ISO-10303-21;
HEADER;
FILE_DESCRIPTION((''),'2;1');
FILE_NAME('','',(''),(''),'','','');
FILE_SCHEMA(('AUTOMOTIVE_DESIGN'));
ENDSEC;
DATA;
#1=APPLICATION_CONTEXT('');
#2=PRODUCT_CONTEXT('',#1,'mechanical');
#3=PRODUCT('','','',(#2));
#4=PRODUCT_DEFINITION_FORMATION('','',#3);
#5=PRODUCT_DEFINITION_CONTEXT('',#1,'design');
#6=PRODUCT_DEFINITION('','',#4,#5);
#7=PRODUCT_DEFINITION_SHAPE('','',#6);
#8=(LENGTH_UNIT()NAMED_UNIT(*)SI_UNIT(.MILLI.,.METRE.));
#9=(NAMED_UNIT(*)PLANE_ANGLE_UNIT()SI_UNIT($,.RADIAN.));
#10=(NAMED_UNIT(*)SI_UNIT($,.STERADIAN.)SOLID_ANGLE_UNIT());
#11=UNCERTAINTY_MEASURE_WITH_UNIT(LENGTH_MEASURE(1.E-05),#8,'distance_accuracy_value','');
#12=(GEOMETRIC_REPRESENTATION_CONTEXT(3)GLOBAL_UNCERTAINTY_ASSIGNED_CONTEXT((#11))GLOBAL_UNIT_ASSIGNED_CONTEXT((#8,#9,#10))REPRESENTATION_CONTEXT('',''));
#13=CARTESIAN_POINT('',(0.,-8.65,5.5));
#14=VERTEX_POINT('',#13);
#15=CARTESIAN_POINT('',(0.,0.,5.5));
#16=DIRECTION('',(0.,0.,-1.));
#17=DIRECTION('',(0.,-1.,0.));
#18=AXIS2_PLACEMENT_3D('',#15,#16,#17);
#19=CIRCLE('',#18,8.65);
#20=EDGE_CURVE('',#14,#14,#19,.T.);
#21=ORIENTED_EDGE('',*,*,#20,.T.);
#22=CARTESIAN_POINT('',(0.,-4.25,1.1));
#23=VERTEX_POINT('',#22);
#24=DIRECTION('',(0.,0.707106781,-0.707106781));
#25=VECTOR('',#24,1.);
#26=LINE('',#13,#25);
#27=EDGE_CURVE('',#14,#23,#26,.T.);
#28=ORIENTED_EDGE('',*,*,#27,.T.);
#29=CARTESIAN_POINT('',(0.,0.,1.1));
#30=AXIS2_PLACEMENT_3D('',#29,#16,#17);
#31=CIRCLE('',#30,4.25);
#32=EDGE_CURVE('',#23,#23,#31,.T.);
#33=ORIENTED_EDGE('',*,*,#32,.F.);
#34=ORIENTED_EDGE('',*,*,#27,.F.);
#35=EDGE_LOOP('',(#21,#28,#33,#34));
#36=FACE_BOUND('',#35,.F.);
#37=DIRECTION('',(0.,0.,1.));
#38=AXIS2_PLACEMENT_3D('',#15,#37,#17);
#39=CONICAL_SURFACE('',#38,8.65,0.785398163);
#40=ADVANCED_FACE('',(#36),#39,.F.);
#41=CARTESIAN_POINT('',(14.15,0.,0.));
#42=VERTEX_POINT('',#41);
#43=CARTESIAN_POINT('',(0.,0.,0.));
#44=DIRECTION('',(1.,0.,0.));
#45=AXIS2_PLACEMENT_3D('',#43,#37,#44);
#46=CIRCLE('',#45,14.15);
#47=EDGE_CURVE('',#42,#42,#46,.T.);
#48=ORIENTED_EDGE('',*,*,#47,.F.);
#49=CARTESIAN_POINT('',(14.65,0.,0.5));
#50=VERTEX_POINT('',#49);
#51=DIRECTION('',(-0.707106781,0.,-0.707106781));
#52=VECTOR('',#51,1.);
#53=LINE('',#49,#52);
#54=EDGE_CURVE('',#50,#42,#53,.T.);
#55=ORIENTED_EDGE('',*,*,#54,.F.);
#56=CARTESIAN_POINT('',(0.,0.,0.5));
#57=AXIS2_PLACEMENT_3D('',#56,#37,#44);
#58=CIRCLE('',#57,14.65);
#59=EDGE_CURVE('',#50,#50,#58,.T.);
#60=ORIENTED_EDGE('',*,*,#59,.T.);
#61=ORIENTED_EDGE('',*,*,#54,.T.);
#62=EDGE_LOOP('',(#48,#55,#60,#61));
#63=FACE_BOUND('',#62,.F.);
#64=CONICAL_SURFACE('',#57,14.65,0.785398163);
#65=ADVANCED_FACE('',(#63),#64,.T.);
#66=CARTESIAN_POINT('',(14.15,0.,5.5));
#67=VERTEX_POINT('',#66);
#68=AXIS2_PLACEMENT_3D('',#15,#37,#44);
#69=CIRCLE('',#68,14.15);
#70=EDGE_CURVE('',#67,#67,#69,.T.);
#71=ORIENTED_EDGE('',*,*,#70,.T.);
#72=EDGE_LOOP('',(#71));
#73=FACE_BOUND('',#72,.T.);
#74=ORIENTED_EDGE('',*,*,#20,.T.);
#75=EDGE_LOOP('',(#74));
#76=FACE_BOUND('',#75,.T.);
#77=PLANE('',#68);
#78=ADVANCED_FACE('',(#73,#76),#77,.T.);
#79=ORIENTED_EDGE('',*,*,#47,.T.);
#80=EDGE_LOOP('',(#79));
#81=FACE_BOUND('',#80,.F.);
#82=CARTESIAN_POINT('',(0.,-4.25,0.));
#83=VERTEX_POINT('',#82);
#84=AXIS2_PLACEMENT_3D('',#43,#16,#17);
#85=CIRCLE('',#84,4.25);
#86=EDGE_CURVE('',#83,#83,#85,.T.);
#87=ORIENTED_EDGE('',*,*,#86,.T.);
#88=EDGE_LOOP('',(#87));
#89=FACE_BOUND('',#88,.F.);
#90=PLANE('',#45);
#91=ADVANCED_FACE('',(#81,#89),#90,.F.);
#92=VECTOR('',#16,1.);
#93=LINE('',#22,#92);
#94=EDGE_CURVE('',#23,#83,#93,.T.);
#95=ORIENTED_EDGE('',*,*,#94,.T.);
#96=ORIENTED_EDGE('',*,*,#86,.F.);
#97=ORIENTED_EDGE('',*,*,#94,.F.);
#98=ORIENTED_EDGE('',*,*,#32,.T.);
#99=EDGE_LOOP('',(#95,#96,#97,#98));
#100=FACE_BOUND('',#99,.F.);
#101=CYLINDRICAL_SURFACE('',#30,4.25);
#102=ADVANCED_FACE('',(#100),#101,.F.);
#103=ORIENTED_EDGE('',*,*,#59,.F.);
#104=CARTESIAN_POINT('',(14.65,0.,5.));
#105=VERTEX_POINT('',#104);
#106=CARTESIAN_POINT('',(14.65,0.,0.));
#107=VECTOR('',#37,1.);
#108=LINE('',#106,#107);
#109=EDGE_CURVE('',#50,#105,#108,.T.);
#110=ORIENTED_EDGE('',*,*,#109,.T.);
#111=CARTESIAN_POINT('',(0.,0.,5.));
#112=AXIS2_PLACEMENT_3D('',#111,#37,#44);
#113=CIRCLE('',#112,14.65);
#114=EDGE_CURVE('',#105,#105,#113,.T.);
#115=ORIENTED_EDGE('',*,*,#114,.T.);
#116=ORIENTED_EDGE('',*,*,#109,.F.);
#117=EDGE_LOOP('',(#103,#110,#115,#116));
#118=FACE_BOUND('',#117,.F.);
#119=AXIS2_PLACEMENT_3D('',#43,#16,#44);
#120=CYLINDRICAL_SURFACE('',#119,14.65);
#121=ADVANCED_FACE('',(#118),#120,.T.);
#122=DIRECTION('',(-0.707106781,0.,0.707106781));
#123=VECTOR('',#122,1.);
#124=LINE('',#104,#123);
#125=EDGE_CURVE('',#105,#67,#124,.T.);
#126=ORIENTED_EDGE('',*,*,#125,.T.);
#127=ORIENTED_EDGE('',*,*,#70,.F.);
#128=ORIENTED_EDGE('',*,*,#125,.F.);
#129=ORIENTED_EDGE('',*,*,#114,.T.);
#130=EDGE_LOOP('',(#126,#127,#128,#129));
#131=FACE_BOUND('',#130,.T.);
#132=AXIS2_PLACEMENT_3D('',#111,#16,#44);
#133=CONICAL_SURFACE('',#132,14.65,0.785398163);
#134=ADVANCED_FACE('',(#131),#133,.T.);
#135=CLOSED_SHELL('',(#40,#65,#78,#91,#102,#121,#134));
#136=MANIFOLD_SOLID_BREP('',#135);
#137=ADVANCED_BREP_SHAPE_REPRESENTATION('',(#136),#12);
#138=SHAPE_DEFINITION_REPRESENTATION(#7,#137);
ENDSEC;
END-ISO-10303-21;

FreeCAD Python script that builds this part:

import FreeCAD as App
import Part
import Sketcher


def edges_at(feature, points):
    """Names of the edges that pass closest to the given points."""
    edges = feature.Shape.Edges
    near = lambda p: min(range(len(edges)), key=lambda i: edges[i].distToShape(Part.Vertex(*p))[0])
    return sorted({f"Edge{near(p) + 1}" for p in points})

doc = App.newDocument("Part")
body = doc.addObject("PartDesign::Body", "Body")

# Sketch on XY plane
sketch1 = doc.addObject("Sketcher::SketchObject", "Sketch")
body.addObject(sketch1)
sketch1.AttachmentSupport = (doc.XY_Plane, [""])
sketch1.MapMode = "FlatFace"
sketch1.addGeometry(Part.Circle(App.Vector(0, 0, 0), App.Vector(0, 0, 1), 15), False)
sketch1.addConstraint([
    Sketcher.Constraint("Coincident", 0, 3, -1, 1),
    Sketcher.Constraint("Diameter", 0, 29.3),
])
pad1 = doc.addObject("PartDesign::Pad", "Pad")
body.addObject(pad1)
pad1.Profile = sketch1
pad1.Length = 5.5
doc.recompute()

chamfer = doc.addObject("PartDesign::Chamfer", "Chamfer")
body.addObject(chamfer)
chamfer.Base = (pad1, edges_at(pad1, [(-14.65, 0, 5.5), (-14.65, 0, 0)]))
chamfer.Size = 0.5

# Sketch on XY plane
sketch2 = doc.addObject("Sketcher::SketchObject", "Sketch001")
body.addObject(sketch2)
sketch2.AttachmentSupport = (doc.XY_Plane, [""])
sketch2.MapMode = "FlatFace"
sketch2.AttachmentOffset = App.Placement(App.Vector(0, 0, 5.5), App.Rotation())
sketch2.addGeometry(Part.Circle(App.Vector(0, 0, 0), App.Vector(0, 0, 1), 4.2), False)
sketch2.addConstraint([
    Sketcher.Constraint("Coincident", 0, 3, -1, 1),
    Sketcher.Constraint("Diameter", 0, 8.5),
])
doc.recompute()
hole = doc.addObject("PartDesign::Hole", "Hole")
body.addObject(hole)
hole.Profile = sketch2
hole.ThreadType = "None"
hole.Diameter = 8.5
hole.DepthType = "Dimension"
hole.Depth = 8
hole.DrillPoint = "Angled"
hole.DrillPointAngle = 118
hole.HoleCutType = "Countersink"
hole.HoleCutDiameter = 17.3
hole.HoleCutCountersinkAngle = 90

doc.recompute()
